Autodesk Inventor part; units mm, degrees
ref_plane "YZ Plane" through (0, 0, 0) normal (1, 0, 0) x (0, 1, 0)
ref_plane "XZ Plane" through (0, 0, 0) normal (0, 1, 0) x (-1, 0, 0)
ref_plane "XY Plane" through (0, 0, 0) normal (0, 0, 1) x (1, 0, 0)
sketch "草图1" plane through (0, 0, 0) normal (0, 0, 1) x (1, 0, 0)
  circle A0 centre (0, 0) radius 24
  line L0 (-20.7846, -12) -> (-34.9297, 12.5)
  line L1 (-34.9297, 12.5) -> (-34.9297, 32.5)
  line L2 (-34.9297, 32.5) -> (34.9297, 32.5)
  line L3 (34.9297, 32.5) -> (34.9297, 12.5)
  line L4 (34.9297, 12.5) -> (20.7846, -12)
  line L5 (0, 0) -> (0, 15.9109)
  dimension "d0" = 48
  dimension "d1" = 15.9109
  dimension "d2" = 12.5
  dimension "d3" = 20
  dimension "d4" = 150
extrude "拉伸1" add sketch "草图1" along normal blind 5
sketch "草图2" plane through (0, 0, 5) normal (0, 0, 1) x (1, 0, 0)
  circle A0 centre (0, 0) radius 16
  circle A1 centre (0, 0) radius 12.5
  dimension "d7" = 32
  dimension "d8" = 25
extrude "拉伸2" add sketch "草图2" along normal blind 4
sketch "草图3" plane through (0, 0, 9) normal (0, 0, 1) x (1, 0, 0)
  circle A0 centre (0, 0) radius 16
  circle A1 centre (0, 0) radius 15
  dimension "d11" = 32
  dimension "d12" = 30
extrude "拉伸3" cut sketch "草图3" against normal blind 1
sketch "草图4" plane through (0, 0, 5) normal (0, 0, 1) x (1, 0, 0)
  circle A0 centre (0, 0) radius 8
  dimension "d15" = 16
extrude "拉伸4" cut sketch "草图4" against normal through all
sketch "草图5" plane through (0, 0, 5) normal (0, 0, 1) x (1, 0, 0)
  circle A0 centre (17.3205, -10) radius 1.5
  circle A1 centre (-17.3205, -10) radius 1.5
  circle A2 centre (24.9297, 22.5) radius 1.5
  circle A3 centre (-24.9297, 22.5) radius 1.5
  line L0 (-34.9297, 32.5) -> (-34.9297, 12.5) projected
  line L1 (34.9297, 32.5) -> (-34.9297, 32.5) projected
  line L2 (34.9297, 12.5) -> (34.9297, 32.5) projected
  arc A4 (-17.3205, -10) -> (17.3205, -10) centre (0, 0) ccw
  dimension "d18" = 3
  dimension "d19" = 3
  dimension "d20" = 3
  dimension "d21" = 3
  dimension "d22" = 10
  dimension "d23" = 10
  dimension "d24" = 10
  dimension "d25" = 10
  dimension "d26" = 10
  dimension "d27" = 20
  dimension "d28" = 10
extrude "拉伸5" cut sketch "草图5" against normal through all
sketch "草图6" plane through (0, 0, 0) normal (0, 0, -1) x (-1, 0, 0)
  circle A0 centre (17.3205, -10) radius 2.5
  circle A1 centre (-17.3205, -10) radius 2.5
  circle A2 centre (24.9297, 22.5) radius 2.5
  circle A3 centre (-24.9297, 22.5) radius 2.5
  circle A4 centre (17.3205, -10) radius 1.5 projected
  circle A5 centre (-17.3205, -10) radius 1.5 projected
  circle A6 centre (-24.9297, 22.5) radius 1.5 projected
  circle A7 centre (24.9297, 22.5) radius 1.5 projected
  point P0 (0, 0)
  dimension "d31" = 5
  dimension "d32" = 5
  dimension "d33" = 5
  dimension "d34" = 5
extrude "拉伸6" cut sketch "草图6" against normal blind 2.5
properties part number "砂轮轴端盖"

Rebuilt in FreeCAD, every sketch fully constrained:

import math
import FreeCAD as App
import Part
import Sketcher
from FreeCAD import Vector
Q = App.Units.Quantity

doc = App.newDocument("Part")
body = doc.addObject("PartDesign::Body", "Body")

# Sketch on XY plane
sketch1 = body.newObject("Sketcher::SketchObject", "Sketch")
sketch1.AttachmentSupport = (doc.getObject("XY_Plane"), [""])
sketch1.MapMode = "FlatFace"
sketch1.addGeometry([
    Part.ArcOfCircle(Part.Circle(Vector(0, 0, 0), Vector(0, 0, 1), 24), math.radians(-150), math.radians(-30)),  # 0
    Part.LineSegment(Vector(21, -12, 0), Vector(35, 12, 0)),  # 1
    Part.LineSegment(Vector(35, 12, 0), Vector(35, 32, 0)),  # 2
    Part.LineSegment(Vector(35, 32, 0), Vector(-35, 32, 0)),  # 3
    Part.LineSegment(Vector(-35, 32, 0), Vector(-35, 12, 0)),  # 4
    Part.LineSegment(Vector(-35, 12, 0), Vector(-21, -12, 0)),  # 5
], False)
sketch1.addConstraint([
    Sketcher.Constraint("Tangent", 0, 2, 1, 1),
    Sketcher.Constraint("Coincident", 1, 2, 2, 1),
    Sketcher.Constraint("Coincident", 2, 2, 3, 1),
    Sketcher.Constraint("Coincident", 3, 2, 4, 1),
    Sketcher.Constraint("Coincident", 4, 2, 5, 1),
    Sketcher.Constraint("Tangent", 5, 2, 0, 1),
    Sketcher.Constraint("Vertical", 2),
    Sketcher.Constraint("Horizontal", 3),
    Sketcher.Constraint("Vertical", 4),
    Sketcher.Constraint("Coincident", 0, 3, -1, 1),
    Sketcher.Constraint("Symmetric", 1, 2, 4, 2, -2),
    Sketcher.Constraint("Radius", 0, 24.0),
    Sketcher.Constraint("DistanceY", 2, 1, 2, 2, 20.0),
    Sketcher.Constraint("DistanceY", -1, 1, 1, 2, 12.5),
    Sketcher.Constraint("Angle", 1, Q("60 deg")),
])
pad1 = body.newObject("PartDesign::Pad", "Pad")
pad1.Profile = sketch1
pad1.Length = 5

# Sketch on XY plane
sketch2 = body.newObject("Sketcher::SketchObject", "Sketch001")
sketch2.AttachmentSupport = (doc.getObject("XY_Plane"), [""])
sketch2.MapMode = "FlatFace"
sketch2.AttachmentOffset = App.Placement(Vector(0, 0, 5), App.Rotation())
sketch2.addGeometry([
    Part.Circle(Vector(0, 0, 0), Vector(0, 0, 1), 16),
    Part.Circle(Vector(0, 0, 0), Vector(0, 0, 1), 12),
], False)
sketch2.addConstraint([
    Sketcher.Constraint("Coincident", 0, 3, -1, 1),
    Sketcher.Constraint("Coincident", 1, 3, -1, 1),
    Sketcher.Constraint("Diameter", 0, 32.0),
    Sketcher.Constraint("Diameter", 1, 25.0),
])
pad2 = body.newObject("PartDesign::Pad", "Pad001")
pad2.Profile = sketch2
pad2.Length = 4

# Sketch on XY plane
sketch3 = body.newObject("Sketcher::SketchObject", "Sketch002")
sketch3.AttachmentSupport = (doc.getObject("XY_Plane"), [""])
sketch3.MapMode = "FlatFace"
sketch3.AttachmentOffset = App.Placement(Vector(0, 0, 9), App.Rotation())
sketch3.addGeometry([
    Part.Circle(Vector(0, 0, 0), Vector(0, 0, 1), 16),
    Part.Circle(Vector(0, 0, 0), Vector(0, 0, 1), 15),
], False)
sketch3.addConstraint([
    Sketcher.Constraint("Coincident", 0, 3, -1, 1),
    Sketcher.Constraint("Coincident", 1, 3, -1, 1),
    Sketcher.Constraint("Diameter", 0, 32.0),
    Sketcher.Constraint("Diameter", 1, 30.0),
])
pocket1 = body.newObject("PartDesign::Pocket", "Pocket")
pocket1.Profile = sketch3
pocket1.Length = 1

# Sketch on XY plane
sketch4 = body.newObject("Sketcher::SketchObject", "Sketch003")
sketch4.AttachmentSupport = (doc.getObject("XY_Plane"), [""])
sketch4.MapMode = "FlatFace"
sketch4.AttachmentOffset = App.Placement(Vector(0, 0, 5), App.Rotation())
sketch4.addGeometry(Part.Circle(Vector(0, 0, 0), Vector(0, 0, 1), 8), False)
sketch4.addConstraint([
    Sketcher.Constraint("Coincident", 0, 3, -1, 1),
    Sketcher.Constraint("Diameter", 0, 16.0),
])
pocket2 = body.newObject("PartDesign::Pocket", "Pocket001")
pocket2.Profile = sketch4
pocket2.Type = "ThroughAll"

# Sketch on XY plane
sketch5 = body.newObject("Sketcher::SketchObject", "Sketch004")
sketch5.AttachmentSupport = (doc.getObject("XY_Plane"), [""])
sketch5.MapMode = "FlatFace"
sketch5.AttachmentOffset = App.Placement(Vector(0, 0, 5), App.Rotation())
sketch5.addGeometry([
    Part.Circle(Vector(17.3, -10, 0), Vector(0, 0, 1), 1.5),
    Part.Circle(Vector(-17.3, -10, 0), Vector(0, 0, 1), 1.5),
    Part.Circle(Vector(24.9, 22.5, 0), Vector(0, 0, 1), 1.5),
    Part.Circle(Vector(-24.9, 22.5, 0), Vector(0, 0, 1), 1.5),
], False)
sketch5.addConstraint([
    Sketcher.Constraint("Equal", 0, 1),
    Sketcher.Constraint("Equal", 1, 2),
    Sketcher.Constraint("Equal", 2, 3),
    Sketcher.Constraint("Symmetric", 0, 3, 1, 3, -2),
    Sketcher.Constraint("Symmetric", 2, 3, 3, 3, -2),
    Sketcher.Constraint("Diameter", 0, 3.0),
    Sketcher.Constraint("DistanceY", 0, 3, -1, 1, 10.0),
    Sketcher.Constraint("DistanceY", -1, 1, 2, 3, 22.5),
    Sketcher.Constraint("DistanceX", 1, 3, 0, 3, 34.641),
    Sketcher.Constraint("DistanceX", -1, 1, 2, 3, 24.9297),
])
pocket3 = body.newObject("PartDesign::Pocket", "Pocket002")
pocket3.Profile = sketch5
pocket3.Type = "ThroughAll"

# Sketch on XY plane
sketch6 = body.newObject("Sketcher::SketchObject", "Sketch005")
sketch6.AttachmentSupport = (doc.getObject("XY_Plane"), [""])
sketch6.MapMode = "FlatFace"
sketch6.addGeometry([
    Part.Circle(Vector(-17.3, -10, 0), Vector(0, 0, 1), 2.5),  # 0
    Part.Circle(Vector(-17.3, -10, 0), Vector(0, 0, 1), 1.5),  # 1
    Part.Circle(Vector(17.3, -10, 0), Vector(0, 0, 1), 2.5),  # 2
    Part.Circle(Vector(17.3, -10, 0), Vector(0, 0, 1), 1.5),  # 3
    Part.Circle(Vector(-24.9, 22.5, 0), Vector(0, 0, 1), 2.5),  # 4
    Part.Circle(Vector(-24.9, 22.5, 0), Vector(0, 0, 1), 1.5),  # 5
    Part.Circle(Vector(24.9, 22.5, 0), Vector(0, 0, 1), 2.5),  # 6
    Part.Circle(Vector(24.9, 22.5, 0), Vector(0, 0, 1), 1.5),  # 7
], False)
sketch6.addConstraint([
    Sketcher.Constraint("Coincident", 1, 3, 0, 3),
    Sketcher.Constraint("Coincident", 3, 3, 2, 3),
    Sketcher.Constraint("Coincident", 5, 3, 4, 3),
    Sketcher.Constraint("Coincident", 7, 3, 6, 3),
    Sketcher.Constraint("Equal", 0, 2),
    Sketcher.Constraint("Equal", 1, 3),
    Sketcher.Constraint("Equal", 2, 4),
    Sketcher.Constraint("Equal", 3, 5),
    Sketcher.Constraint("Equal", 4, 6),
    Sketcher.Constraint("Equal", 5, 7),
    Sketcher.Constraint("Symmetric", 0, 3, 2, 3, -2),
    Sketcher.Constraint("Symmetric", 4, 3, 6, 3, -2),
    Sketcher.Constraint("Diameter", 0, 5.0),
    Sketcher.Constraint("Diameter", 1, 3.0),
    Sketcher.Constraint("DistanceY", 0, 3, -1, 1, 10.0),
    Sketcher.Constraint("DistanceY", -1, 1, 4, 3, 22.5),
    Sketcher.Constraint("DistanceX", 0, 3, 2, 3, 34.641),
    Sketcher.Constraint("DistanceX", 4, 3, -1, 1, 24.9297),
])
pocket4 = body.newObject("PartDesign::Pocket", "Pocket003")
pocket4.Profile = sketch6
pocket4.Length = 2.5
pocket4.Reversed = True

doc.recompute()
